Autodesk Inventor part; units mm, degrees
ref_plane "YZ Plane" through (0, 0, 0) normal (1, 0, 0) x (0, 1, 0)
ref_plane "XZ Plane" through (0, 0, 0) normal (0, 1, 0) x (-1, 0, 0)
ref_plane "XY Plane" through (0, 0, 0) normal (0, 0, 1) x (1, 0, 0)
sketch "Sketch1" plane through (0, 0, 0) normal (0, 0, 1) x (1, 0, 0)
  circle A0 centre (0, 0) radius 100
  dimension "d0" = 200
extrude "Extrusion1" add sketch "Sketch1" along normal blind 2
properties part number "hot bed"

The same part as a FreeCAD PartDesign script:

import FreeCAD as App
import Part
import Sketcher

V = App.Vector

doc = App.newDocument("Part")
body = doc.addObject("PartDesign::Body", "Body")

# Sketch on XY plane
sketch1 = body.newObject("Sketcher::SketchObject", "Sketch")
sketch1.AttachmentSupport = (doc.getObject("XY_Plane"), [""])
sketch1.MapMode = "FlatFace"
sketch1.addGeometry(Part.Circle(V(0, 0, 0), V(0, 0, 1), 100), False)
sketch1.addConstraint([
    Sketcher.Constraint("Coincident", 0, 3, -1, 1),
    Sketcher.Constraint("Diameter", 0, 200.0),
])
pad1 = body.newObject("PartDesign::Pad", "Pad")
pad1.Profile = sketch1
pad1.Length = 2

doc.recompute()
